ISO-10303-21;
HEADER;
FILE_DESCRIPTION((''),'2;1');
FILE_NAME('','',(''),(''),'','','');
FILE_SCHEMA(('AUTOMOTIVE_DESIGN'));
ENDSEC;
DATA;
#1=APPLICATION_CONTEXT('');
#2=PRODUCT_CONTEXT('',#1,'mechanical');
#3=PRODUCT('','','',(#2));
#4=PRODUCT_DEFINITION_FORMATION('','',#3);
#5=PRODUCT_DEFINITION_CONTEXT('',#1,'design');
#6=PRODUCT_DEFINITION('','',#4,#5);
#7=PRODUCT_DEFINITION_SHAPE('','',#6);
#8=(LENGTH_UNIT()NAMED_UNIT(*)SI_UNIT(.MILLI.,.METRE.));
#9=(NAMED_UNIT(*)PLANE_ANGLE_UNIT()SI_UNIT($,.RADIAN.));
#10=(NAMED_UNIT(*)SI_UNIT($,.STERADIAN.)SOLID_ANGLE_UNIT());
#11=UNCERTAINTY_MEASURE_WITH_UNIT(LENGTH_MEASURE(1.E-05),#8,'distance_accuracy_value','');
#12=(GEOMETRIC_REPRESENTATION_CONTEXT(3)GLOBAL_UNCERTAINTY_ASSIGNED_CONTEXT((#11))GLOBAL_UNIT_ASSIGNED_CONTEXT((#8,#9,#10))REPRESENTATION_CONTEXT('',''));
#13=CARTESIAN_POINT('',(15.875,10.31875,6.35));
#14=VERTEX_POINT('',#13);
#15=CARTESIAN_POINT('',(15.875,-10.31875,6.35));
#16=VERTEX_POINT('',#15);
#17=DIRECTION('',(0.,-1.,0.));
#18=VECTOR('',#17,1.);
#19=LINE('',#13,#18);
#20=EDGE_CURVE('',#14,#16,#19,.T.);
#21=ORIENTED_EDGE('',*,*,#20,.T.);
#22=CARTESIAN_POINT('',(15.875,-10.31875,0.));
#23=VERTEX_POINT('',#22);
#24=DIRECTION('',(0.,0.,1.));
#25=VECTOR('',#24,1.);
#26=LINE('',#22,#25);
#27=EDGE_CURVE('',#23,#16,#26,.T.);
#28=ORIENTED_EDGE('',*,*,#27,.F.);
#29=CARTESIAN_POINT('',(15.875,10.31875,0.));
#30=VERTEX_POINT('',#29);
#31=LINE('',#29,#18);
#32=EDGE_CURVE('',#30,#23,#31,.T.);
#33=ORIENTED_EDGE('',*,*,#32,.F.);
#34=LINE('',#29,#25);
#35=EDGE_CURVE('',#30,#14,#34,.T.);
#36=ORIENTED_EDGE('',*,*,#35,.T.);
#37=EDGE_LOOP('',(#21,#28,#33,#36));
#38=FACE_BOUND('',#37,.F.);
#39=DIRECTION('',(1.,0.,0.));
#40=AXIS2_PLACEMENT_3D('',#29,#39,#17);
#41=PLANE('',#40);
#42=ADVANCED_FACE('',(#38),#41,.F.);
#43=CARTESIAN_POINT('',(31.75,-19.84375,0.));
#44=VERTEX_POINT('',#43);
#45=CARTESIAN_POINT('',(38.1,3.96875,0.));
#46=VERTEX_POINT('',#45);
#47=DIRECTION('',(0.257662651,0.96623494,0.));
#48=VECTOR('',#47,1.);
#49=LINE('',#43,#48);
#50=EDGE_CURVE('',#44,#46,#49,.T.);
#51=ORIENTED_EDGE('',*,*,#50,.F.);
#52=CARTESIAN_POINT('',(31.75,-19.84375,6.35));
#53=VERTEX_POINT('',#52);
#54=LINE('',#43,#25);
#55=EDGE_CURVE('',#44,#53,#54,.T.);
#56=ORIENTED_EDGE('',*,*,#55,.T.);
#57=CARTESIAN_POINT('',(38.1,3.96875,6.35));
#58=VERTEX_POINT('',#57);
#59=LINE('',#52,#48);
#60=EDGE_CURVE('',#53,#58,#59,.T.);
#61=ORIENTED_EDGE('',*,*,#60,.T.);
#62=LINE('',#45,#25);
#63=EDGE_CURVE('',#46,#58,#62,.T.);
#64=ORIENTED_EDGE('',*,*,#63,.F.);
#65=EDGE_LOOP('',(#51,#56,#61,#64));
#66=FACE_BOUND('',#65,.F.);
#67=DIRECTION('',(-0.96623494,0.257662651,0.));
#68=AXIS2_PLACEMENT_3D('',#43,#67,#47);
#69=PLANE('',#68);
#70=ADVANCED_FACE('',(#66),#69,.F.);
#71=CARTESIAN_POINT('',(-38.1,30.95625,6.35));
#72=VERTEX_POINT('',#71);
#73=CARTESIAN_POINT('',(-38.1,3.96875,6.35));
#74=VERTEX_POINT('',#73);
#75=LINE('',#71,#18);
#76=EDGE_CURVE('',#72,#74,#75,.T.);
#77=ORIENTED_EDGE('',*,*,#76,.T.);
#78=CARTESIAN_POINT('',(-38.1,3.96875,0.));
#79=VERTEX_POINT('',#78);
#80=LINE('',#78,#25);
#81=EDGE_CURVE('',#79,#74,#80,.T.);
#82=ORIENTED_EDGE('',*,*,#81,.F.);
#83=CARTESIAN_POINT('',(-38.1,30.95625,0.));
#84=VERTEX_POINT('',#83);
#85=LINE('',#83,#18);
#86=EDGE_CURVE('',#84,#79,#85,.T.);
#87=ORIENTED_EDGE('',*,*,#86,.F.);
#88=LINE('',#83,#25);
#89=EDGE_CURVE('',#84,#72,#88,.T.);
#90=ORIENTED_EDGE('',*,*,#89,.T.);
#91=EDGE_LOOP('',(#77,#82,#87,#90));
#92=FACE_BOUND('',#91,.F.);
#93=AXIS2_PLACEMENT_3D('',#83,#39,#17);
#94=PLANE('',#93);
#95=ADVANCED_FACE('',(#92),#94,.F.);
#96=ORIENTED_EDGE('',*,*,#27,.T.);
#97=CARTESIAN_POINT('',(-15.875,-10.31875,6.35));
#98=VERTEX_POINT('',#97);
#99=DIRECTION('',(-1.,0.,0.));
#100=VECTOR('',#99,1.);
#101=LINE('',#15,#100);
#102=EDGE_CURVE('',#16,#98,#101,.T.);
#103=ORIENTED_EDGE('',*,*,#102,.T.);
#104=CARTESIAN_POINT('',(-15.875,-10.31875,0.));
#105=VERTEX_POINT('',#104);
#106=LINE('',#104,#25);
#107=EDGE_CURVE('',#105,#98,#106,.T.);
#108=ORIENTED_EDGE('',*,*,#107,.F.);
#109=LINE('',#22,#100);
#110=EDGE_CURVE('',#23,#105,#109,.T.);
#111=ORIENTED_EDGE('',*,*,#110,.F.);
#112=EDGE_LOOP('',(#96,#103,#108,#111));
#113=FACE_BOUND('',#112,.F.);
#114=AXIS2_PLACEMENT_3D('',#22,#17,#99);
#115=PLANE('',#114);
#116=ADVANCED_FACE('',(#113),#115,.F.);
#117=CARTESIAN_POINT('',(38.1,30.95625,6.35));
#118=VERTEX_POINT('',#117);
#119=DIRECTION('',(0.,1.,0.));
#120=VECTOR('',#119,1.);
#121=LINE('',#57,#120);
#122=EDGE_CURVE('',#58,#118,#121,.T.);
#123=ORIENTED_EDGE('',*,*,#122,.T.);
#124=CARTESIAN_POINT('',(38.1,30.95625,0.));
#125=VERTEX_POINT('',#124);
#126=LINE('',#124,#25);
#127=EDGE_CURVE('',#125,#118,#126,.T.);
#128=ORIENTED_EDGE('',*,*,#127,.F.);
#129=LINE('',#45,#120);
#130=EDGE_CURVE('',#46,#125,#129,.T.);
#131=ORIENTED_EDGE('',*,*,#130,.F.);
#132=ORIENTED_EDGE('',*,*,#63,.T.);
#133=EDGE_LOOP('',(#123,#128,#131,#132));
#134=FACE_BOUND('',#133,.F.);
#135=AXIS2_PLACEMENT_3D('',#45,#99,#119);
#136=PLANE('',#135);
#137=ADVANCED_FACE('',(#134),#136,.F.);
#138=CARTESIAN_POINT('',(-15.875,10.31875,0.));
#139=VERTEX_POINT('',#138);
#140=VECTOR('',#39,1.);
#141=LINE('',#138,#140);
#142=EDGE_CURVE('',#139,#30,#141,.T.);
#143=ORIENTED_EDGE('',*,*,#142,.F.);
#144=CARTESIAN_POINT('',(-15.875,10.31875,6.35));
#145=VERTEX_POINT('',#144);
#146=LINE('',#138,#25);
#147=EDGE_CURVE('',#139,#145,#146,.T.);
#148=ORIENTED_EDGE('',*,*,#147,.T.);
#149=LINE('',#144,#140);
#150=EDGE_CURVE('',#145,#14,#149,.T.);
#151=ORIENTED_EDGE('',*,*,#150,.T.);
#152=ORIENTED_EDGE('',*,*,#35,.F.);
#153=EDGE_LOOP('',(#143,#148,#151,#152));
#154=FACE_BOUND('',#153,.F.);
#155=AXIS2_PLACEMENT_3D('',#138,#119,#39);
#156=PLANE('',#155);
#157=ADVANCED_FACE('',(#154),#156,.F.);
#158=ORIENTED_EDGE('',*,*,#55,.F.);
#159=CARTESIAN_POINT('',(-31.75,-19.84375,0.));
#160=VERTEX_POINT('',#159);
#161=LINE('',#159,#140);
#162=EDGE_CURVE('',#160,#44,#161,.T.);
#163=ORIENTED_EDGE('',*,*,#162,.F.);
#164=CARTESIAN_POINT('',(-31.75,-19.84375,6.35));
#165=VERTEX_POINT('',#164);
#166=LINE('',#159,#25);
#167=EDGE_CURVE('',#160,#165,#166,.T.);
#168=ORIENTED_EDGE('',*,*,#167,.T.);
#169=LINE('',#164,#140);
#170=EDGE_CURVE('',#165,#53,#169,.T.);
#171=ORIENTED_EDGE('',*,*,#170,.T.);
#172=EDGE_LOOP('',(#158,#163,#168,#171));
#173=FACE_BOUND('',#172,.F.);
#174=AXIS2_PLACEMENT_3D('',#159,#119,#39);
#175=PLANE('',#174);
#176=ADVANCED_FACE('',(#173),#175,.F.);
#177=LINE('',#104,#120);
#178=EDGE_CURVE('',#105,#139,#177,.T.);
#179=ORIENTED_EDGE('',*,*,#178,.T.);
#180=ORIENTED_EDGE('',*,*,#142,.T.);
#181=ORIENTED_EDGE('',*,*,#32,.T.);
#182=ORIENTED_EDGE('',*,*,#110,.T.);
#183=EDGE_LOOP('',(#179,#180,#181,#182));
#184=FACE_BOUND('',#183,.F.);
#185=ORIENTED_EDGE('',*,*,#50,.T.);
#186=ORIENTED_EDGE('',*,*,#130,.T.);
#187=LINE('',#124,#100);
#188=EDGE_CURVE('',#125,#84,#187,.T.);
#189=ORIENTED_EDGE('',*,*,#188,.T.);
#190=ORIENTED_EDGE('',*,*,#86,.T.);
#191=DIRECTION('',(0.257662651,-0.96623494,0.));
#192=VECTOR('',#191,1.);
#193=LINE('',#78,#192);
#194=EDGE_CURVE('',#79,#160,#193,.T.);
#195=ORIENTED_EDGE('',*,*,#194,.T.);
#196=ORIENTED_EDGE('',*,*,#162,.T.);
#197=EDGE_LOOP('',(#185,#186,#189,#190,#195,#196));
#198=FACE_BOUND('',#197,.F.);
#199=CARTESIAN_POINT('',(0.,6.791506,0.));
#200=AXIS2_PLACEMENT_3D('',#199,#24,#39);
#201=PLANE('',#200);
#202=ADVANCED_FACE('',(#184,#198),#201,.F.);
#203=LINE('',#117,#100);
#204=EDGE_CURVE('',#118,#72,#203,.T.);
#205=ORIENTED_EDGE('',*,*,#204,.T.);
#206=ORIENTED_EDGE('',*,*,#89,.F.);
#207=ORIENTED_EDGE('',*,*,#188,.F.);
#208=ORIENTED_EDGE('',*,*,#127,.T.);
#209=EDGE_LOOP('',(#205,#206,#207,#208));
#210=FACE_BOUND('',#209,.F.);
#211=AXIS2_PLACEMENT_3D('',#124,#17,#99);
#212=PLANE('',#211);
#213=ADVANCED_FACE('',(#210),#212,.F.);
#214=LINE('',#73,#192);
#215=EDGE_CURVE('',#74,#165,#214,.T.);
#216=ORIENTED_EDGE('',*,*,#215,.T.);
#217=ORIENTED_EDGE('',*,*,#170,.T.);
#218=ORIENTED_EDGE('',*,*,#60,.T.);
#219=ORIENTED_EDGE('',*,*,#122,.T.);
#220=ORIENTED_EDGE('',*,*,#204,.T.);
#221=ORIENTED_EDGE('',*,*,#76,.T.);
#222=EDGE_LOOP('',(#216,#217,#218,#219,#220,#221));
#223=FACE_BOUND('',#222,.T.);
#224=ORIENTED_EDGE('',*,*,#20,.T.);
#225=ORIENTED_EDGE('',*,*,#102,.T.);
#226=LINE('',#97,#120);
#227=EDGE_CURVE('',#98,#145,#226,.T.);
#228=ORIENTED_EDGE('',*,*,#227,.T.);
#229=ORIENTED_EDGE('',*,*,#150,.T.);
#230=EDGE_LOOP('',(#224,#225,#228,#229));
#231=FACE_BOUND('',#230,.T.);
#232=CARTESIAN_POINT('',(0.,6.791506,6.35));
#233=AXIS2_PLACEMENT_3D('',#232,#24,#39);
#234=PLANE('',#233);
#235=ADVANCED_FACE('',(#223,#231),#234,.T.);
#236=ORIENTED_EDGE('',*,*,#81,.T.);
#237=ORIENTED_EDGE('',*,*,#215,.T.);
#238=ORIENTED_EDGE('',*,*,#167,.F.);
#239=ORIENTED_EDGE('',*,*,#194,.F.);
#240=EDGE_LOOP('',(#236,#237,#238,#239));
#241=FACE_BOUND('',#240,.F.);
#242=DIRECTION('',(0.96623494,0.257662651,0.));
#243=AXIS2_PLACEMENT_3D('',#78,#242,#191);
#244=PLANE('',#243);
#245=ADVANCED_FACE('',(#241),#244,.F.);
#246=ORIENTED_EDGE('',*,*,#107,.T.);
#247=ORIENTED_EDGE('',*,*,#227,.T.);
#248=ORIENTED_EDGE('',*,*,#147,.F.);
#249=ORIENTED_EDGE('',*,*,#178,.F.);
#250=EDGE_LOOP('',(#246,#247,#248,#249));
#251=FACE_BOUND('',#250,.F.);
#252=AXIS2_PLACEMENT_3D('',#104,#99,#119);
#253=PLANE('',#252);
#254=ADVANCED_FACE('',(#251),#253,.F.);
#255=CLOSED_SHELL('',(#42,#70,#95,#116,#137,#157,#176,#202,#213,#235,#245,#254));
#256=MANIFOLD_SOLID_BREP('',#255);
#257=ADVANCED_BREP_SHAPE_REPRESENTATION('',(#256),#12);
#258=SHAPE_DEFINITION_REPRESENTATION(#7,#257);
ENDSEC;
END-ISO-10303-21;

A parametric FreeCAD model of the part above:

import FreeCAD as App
import Part
import Sketcher

V = App.Vector
Q = App.Units.Quantity


def add_polygon(sketch, points):
    """Adds a closed chain of lines whose ends are joined by coincident constraints."""
    first, n = sketch.GeometryCount, len(points)
    for a, b in zip(points, points[1:] + points[:1]):
        sketch.addGeometry(Part.LineSegment(App.Vector(*a, 0), App.Vector(*b, 0)), False)
    for i in range(n):
        sketch.addConstraint(Sketcher.Constraint("Coincident", first + i, 2, first + (i + 1) % n, 1))

doc = App.newDocument("Part")
params = doc.addObject("Spreadsheet::Sheet", "Params")
for row, (alias, value) in enumerate([
    ("sketch1_width", "3 in"),
    ("sketch1_width2", "2.5 in"),
    ("sketch1_width3", "1.25 in"),
    ("sketch1_height", "1.0625 in"),
    ("sketch1_height2", "0.8125 in"),
    ("pad1_length", "0.25 in"),
], start=1):
    params.set(f"A{row}", alias)
    params.set(f"B{row}", "=" + value)
    params.setAlias(f"B{row}", alias)

body = doc.addObject("PartDesign::Body", "Body")

sketch1 = doc.addObject("Sketcher::SketchObject", "Sketch")
body.addObject(sketch1)
sketch1.AttachmentSupport = (doc.XY_Plane, [""])
sketch1.MapMode = "FlatFace"
add_polygon(sketch1, [(38, 4), (38, 31), (-38, 31), (-38, 4), (-32, -20), (32, -20)])
add_polygon(sketch1, [(-16, -10), (-16, 10), (16, 10), (16, -10)])
sketch1.addConstraint(Sketcher.Constraint("Vertical", 0))
sketch1.addConstraint(Sketcher.Constraint("Horizontal", 1))
sketch1.addConstraint(Sketcher.Constraint("Vertical", 2))
sketch1.addConstraint(Sketcher.Constraint("Horizontal", 4))
sketch1.addConstraint(Sketcher.Constraint("Vertical", 6))
sketch1.addConstraint(Sketcher.Constraint("Horizontal", 7))
sketch1.addConstraint(Sketcher.Constraint("Vertical", 8))
sketch1.addConstraint(Sketcher.Constraint("Horizontal", 9))
sketch1.addConstraint(Sketcher.Constraint("Symmetric", 6, 2, 8, 2, -1, 1))
sketch1.addConstraint(Sketcher.Constraint("Symmetric", 2, 2, 5, 2, -2))
sketch1.addConstraint(Sketcher.Constraint("Equal", 3, 5))
sketch1.addConstraint(Sketcher.Constraint("DistanceX", 1, 2, 1, 1, Q("3 in")))
sketch1.addConstraint(Sketcher.Constraint("DistanceX", 4, 1, 4, 2, Q("2.5 in")))
sketch1.addConstraint(Sketcher.Constraint("DistanceY", 3, 2, 1, 2, Q("2 in")))
sketch1.addConstraint(Sketcher.Constraint("DistanceX", 7, 1, 7, 2, Q("1.25 in")))
sketch1.addConstraint(Sketcher.Constraint("DistanceY", 0, 1, 0, 2, Q("1.0625 in")))
sketch1.addConstraint(Sketcher.Constraint("DistanceY", 6, 1, 6, 2, Q("0.8125 in")))
sketch1.addConstraint(Sketcher.Constraint("DistanceY", 2, 2, 6, 2, Q("0.25 in")))
sketch1.setExpression("Constraints[21]", "Params.sketch1_width")
sketch1.setExpression("Constraints[22]", "Params.sketch1_width2")
sketch1.setExpression("Constraints[24]", "Params.sketch1_width3")
sketch1.setExpression("Constraints[25]", "Params.sketch1_height")
sketch1.setExpression("Constraints[26]", "Params.sketch1_height2")
pad1 = doc.addObject("PartDesign::Pad", "Pad")
body.addObject(pad1)
pad1.Profile = sketch1
pad1.setExpression("Length", "Params.pad1_length")

doc.recompute()
